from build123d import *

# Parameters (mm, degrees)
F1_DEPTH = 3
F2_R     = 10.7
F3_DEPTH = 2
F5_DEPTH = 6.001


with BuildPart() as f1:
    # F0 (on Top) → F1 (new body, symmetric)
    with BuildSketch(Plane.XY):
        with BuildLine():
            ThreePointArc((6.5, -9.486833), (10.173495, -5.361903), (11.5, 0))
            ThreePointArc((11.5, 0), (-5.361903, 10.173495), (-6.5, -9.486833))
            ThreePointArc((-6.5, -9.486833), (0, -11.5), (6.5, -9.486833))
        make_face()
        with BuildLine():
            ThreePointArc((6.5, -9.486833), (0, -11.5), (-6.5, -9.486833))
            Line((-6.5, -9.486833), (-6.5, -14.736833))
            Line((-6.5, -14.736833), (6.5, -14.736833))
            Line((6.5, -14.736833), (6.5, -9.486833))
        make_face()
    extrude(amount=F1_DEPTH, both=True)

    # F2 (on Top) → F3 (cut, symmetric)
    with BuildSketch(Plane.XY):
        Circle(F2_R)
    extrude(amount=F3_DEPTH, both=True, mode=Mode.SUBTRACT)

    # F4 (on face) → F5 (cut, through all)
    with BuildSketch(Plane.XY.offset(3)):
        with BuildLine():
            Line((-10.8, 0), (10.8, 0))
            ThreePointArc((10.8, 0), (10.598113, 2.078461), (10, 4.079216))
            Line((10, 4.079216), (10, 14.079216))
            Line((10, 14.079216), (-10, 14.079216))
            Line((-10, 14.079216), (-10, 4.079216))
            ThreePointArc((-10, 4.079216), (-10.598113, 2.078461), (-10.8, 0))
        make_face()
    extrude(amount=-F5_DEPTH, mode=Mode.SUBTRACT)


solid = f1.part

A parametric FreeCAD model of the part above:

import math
import FreeCAD as App
import Part
import Sketcher

doc = App.newDocument("Part")
body = doc.addObject("PartDesign::Body", "Body")

sketch1 = body.newObject("Sketcher::SketchObject", "Sketch")
sketch1.AttachmentSupport = (doc.getObject("XY_Plane"), [""])
sketch1.MapMode = "FlatFace"
sketch1.addGeometry([
    Part.ArcOfCircle(Part.Circle(App.Vector(0.000001, -0.000001, 0), App.Vector(0, 0, 1), 11.499999), math.radians(-55.582615), math.radians(0.000004)),
    Part.ArcOfCircle(Part.Circle(App.Vector(0, 0, 0), App.Vector(0, 0, 1), 11.5), math.radians(-0.000001), math.radians(235.582612)),
    Part.LineSegment(App.Vector(-6.5, -9.486833, 0), App.Vector(-6.5, -14.736833, 0)),
    Part.LineSegment(App.Vector(-6.5, -14.736833, 0), App.Vector(6.5, -14.736833, 0)),
    Part.LineSegment(App.Vector(6.5, -14.736833, 0), App.Vector(6.5, -9.486833, 0)),
], False)
sketch1.addConstraint([
    Sketcher.Constraint("Tangent", 0, 2, 1, 1),
    Sketcher.Constraint("Coincident", 1, 2, 2, 1),
    Sketcher.Constraint("Coincident", 2, 2, 3, 1),
    Sketcher.Constraint("Coincident", 3, 2, 4, 1),
    Sketcher.Constraint("Coincident", 4, 2, 0, 1),
    Sketcher.Constraint("Vertical", 2),
    Sketcher.Constraint("Horizontal", 3),
    Sketcher.Constraint("Vertical", 4),
    Sketcher.Constraint("Coincident", 0, 3, -1, 1),
    Sketcher.Constraint("Equal", 0, 1),
    Sketcher.Constraint("PointOnObject", 0, 2, -1),
    Sketcher.Constraint("Horizontal", 1, 2, 4, 2),
    Sketcher.Constraint("Radius", 0, 11.499999),
    Sketcher.Constraint("DistanceX", 3, 1, 3, 2, 13.0),
    Sketcher.Constraint("DistanceY", 2, 2, 2, 1, 5.25),
])
pad1 = body.newObject("PartDesign::Pad", "Pad")
pad1.Profile = sketch1
pad1.Length = 6
pad1.Midplane = True

sketch2 = body.newObject("Sketcher::SketchObject", "Sketch001")
sketch2.AttachmentSupport = (doc.getObject("XY_Plane"), [""])
sketch2.MapMode = "FlatFace"
sketch2.addGeometry(Part.Circle(App.Vector(0, 0, 0), App.Vector(0, 0, 1), 10.7), False)
sketch2.addConstraint([
    Sketcher.Constraint("Coincident", 0, 3, -1, 1),
    Sketcher.Constraint("Diameter", 0, 21.4),
])
pocket1 = body.newObject("PartDesign::Pocket", "Pocket")
pocket1.Profile = sketch2
pocket1.Length = 4
pocket1.Midplane = True

sketch3 = body.newObject("Sketcher::SketchObject", "Sketch002")
sketch3.AttachmentSupport = (doc.getObject("XY_Plane"), [""])
sketch3.MapMode = "FlatFace"
sketch3.AttachmentOffset = App.Placement(App.Vector(0, 0, 3), App.Rotation())
sketch3.addGeometry([
    Part.LineSegment(App.Vector(-10.8, 0, 0), App.Vector(10.8, 0, 0)),
    Part.ArcOfCircle(Part.Circle(App.Vector(-0.000006, -0.000001, 0), App.Vector(0, 0, 1), 10.800006), math.radians(0.000004), math.radians(22.191601)),
    Part.LineSegment(App.Vector(10, 4.079216, 0), App.Vector(10, 14.079216, 0)),
    Part.LineSegment(App.Vector(10, 14.079216, 0), App.Vector(-10, 14.079216, 0)),
    Part.LineSegment(App.Vector(-10, 14.079216, 0), App.Vector(-10, 4.079216, 0)),
    Part.ArcOfCircle(Part.Circle(App.Vector(0.000006, -0.000001, 0), App.Vector(0, 0, 1), 10.800006), math.radians(157.808399), math.radians(179.999996)),
], False)
sketch3.addConstraint([
    Sketcher.Constraint("Coincident", 0, 2, 1, 1),
    Sketcher.Constraint("Coincident", 1, 2, 2, 1),
    Sketcher.Constraint("Coincident", 2, 2, 3, 1),
    Sketcher.Constraint("Coincident", 3, 2, 4, 1),
    Sketcher.Constraint("Coincident", 4, 2, 5, 1),
    Sketcher.Constraint("Coincident", 5, 2, 0, 1),
    Sketcher.Constraint("Horizontal", 0),
    Sketcher.Constraint("Vertical", 2),
    Sketcher.Constraint("Horizontal", 3),
    Sketcher.Constraint("Vertical", 4),
    Sketcher.Constraint("Coincident", 1, 3, -1, 1),
    Sketcher.Constraint("Coincident", 5, 3, -1, 1),
    Sketcher.Constraint("Equal", 1, 5),
    Sketcher.Constraint("PointOnObject", 0, 2, -1),
    Sketcher.Constraint("Horizontal", 1, 2, 4, 2),
    Sketcher.Constraint("DistanceX", 3, 2, 3, 1, 20.0),
    Sketcher.Constraint("DistanceY", 2, 1, 2, 2, 10.0),
    Sketcher.Constraint("DistanceX", 0, 1, 0, 2, 21.6),
])
pocket2 = body.newObject("PartDesign::Pocket", "Pocket001")
pocket2.Profile = sketch3
pocket2.Type = "ThroughAll"

doc.recompute()
